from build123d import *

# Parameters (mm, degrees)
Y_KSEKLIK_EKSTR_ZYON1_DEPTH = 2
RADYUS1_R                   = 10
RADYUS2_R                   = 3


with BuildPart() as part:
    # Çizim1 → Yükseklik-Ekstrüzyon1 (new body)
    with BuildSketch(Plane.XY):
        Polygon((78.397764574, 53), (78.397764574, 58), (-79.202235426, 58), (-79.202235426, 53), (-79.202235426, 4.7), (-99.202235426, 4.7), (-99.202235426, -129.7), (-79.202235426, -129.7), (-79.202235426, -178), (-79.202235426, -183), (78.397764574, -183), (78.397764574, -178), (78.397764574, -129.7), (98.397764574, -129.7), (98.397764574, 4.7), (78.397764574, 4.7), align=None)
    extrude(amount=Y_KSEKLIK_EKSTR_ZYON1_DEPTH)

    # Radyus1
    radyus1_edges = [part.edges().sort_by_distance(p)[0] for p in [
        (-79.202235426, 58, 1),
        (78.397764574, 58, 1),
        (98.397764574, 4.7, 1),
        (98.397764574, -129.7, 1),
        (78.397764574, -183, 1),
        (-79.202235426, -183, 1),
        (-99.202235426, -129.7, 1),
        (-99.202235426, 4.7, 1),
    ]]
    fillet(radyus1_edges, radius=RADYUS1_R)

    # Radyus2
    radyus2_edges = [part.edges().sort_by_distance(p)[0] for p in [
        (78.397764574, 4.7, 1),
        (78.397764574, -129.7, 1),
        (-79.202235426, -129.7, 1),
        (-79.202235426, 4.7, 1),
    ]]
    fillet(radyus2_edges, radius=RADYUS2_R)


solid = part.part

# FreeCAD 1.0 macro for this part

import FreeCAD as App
import Part
import Sketcher
from FreeCAD import Vector
Q = App.Units.Quantity


def edges_at(feature, points):
    """Names of the edges that pass closest to the given points."""
    edges = feature.Shape.Edges
    near = lambda p: min(range(len(edges)), key=lambda i: edges[i].distToShape(Part.Vertex(*p))[0])
    return sorted({f"Edge{near(p) + 1}" for p in points})


def add_polygon(sketch, points):
    """Adds a closed chain of lines whose ends are joined by coincident constraints."""
    first, n = sketch.GeometryCount, len(points)
    for a, b in zip(points, points[1:] + points[:1]):
        sketch.addGeometry(Part.LineSegment(App.Vector(*a, 0), App.Vector(*b, 0)), False)
    for i in range(n):
        sketch.addConstraint(Sketcher.Constraint("Coincident", first + i, 2, first + (i + 1) % n, 1))

doc = App.newDocument("Part")
body = doc.addObject("PartDesign::Body", "Body")

sketch1 = doc.addObject("Sketcher::SketchObject", "Sketch")
body.addObject(sketch1)
sketch1.AttachmentSupport = (doc.XY_Plane, [""])
sketch1.MapMode = "FlatFace"
add_polygon(sketch1, [(78, 58), (-79, 58), (-79, 5), (-99, 5), (-99, -130), (-79, -130), (-79, -183), (78, -183), (78, -130), (98, -130), (98, 5), (78, 5)])
sketch1.addConstraint(Sketcher.Constraint("Horizontal", 0))
sketch1.addConstraint(Sketcher.Constraint("Vertical", 1))
sketch1.addConstraint(Sketcher.Constraint("Horizontal", 2))
sketch1.addConstraint(Sketcher.Constraint("Vertical", 3))
sketch1.addConstraint(Sketcher.Constraint("Horizontal", 4))
sketch1.addConstraint(Sketcher.Constraint("Vertical", 5))
sketch1.addConstraint(Sketcher.Constraint("Horizontal", 6))
sketch1.addConstraint(Sketcher.Constraint("Vertical", 7))
sketch1.addConstraint(Sketcher.Constraint("Horizontal", 8))
sketch1.addConstraint(Sketcher.Constraint("Vertical", 9))
sketch1.addConstraint(Sketcher.Constraint("Horizontal", 10))
sketch1.addConstraint(Sketcher.Constraint("Vertical", 11))
sketch1.addConstraint(Sketcher.Constraint("Horizontal", 4, 2, 7, 2))
sketch1.addConstraint(Sketcher.Constraint("Horizontal", 2, 2, 9, 2))
sketch1.addConstraint(Sketcher.Constraint("Vertical", 1, 2, 4, 2))
sketch1.addConstraint(Sketcher.Constraint("Vertical", 7, 2, 10, 2))
sketch1.addConstraint(Sketcher.Constraint("Equal", 4, 8))
sketch1.addConstraint(Sketcher.Constraint("Equal", 1, 5))
sketch1.addConstraint(Sketcher.Constraint("DistanceX", 2, 2, 2, 1, Q("20 mm")))
sketch1.addConstraint(Sketcher.Constraint("DistanceX", 0, 2, 0, 1, Q("157.6 mm")))
sketch1.addConstraint(Sketcher.Constraint("DistanceY", 1, 2, 1, 1, Q("53.3 mm")))
sketch1.addConstraint(Sketcher.Constraint("DistanceY", 3, 2, 3, 1, Q("134.4 mm")))
sketch1.addConstraint(Sketcher.Constraint("DistanceY", -1, 1, 0, 2, Q("58 mm")))
sketch1.addConstraint(Sketcher.Constraint("DistanceX", 0, 2, -1, 1, Q("79.202235 mm")))
pad1 = doc.addObject("PartDesign::Pad", "Pad")
body.addObject(pad1)
pad1.Profile = sketch1
pad1.Length = 2
doc.recompute()

fillet = doc.addObject("PartDesign::Fillet", "Fillet")
body.addObject(fillet)
fillet.Base = (pad1, edges_at(pad1, [
    (-79.202, 58, 1),
    (78.398, 58, 1),
    (98.398, 4.7, 1),
    (98.398, -129.7, 1),
    (78.398, -183, 1),
    (-79.202, -183, 1),
    (-99.202, -129.7, 1),
    (-99.202, 4.7, 1),
]))
fillet.Radius = 10
doc.recompute()

fillet2 = doc.addObject("PartDesign::Fillet", "Fillet001")
body.addObject(fillet2)
fillet2.Base = (fillet, edges_at(fillet, [
    (78.398, 4.7, 1),
    (78.398, -129.7, 1),
    (-79.202, -129.7, 1),
    (-79.202, 4.7, 1),
]))
fillet2.Radius = 3

doc.recompute()
